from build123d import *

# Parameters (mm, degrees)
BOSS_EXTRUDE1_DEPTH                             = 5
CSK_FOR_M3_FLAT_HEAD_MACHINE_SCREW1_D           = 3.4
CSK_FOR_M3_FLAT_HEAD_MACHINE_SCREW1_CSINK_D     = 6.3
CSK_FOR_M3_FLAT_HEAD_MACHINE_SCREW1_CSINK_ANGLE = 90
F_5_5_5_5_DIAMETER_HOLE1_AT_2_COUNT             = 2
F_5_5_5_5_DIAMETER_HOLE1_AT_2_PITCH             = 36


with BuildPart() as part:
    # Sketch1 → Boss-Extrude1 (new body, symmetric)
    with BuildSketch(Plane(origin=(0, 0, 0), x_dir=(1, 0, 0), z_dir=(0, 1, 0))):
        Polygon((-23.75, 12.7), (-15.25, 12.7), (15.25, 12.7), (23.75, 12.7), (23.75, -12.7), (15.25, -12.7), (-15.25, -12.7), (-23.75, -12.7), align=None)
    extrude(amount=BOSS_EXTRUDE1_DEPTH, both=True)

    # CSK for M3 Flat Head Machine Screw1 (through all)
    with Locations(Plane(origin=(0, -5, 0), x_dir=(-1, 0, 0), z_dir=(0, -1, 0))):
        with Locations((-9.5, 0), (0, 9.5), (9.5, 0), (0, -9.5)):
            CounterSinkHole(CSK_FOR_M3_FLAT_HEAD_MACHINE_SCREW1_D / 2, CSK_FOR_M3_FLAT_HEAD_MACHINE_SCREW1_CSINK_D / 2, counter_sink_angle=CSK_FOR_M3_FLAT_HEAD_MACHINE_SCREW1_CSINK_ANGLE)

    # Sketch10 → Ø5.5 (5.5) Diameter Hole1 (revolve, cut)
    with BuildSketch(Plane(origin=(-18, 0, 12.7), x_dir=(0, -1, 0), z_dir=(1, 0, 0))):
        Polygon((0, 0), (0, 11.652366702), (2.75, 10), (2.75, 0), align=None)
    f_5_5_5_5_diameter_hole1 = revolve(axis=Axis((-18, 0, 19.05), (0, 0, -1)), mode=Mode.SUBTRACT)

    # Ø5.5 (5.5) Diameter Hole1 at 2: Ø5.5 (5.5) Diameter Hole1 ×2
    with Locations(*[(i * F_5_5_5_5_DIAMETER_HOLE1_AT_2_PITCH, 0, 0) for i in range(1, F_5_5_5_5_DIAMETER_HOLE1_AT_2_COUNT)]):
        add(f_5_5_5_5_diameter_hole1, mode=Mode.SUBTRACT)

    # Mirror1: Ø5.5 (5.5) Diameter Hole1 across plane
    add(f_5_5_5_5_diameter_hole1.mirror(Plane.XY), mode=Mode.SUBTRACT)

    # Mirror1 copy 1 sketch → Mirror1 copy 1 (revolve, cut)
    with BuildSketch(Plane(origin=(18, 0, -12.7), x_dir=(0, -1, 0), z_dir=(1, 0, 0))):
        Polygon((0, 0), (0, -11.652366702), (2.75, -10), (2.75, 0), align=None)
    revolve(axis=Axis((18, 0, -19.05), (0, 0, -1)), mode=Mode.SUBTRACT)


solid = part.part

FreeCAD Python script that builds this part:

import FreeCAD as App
import Part
import Sketcher
Q = App.Units.Quantity

doc = App.newDocument("Part")
body = doc.addObject("PartDesign::Body", "Body")

# Sketch on XZ plane
sketch1 = doc.addObject("Sketcher::SketchObject", "Sketch")
body.addObject(sketch1)
sketch1.AttachmentSupport = (doc.XZ_Plane, [""])
sketch1.MapMode = "FlatFace"
sketch1.addGeometry([
    Part.LineSegment(App.Vector(24, -13, 0), App.Vector(-24, -13, 0)),
    Part.LineSegment(App.Vector(-24, -13, 0), App.Vector(-24, 13, 0)),
    Part.LineSegment(App.Vector(-24, 13, 0), App.Vector(24, 13, 0)),
    Part.LineSegment(App.Vector(24, 13, 0), App.Vector(24, -13, 0)),
], False)
sketch1.addConstraint([
    Sketcher.Constraint("Coincident", 0, 2, 1, 1),
    Sketcher.Constraint("Coincident", 1, 2, 2, 1),
    Sketcher.Constraint("Coincident", 2, 2, 3, 1),
    Sketcher.Constraint("Coincident", 3, 2, 0, 1),
    Sketcher.Constraint("Horizontal", 0),
    Sketcher.Constraint("Vertical", 1),
    Sketcher.Constraint("Horizontal", 2),
    Sketcher.Constraint("Vertical", 3),
    Sketcher.Constraint("Symmetric", 0, 2, 2, 2, -1, 1),
    Sketcher.Constraint("DistanceX", 0, 2, 0, 1, Q("47.5 mm")),
    Sketcher.Constraint("DistanceY", 1, 1, 1, 2, Q("25.4 mm")),
])
pad1 = doc.addObject("PartDesign::Pad", "Pad")
body.addObject(pad1)
pad1.Profile = sketch1
pad1.Length = 10
pad1.Midplane = True

# Sketch on XZ plane
sketch2 = doc.addObject("Sketcher::SketchObject", "Sketch001")
body.addObject(sketch2)
sketch2.AttachmentSupport = (doc.XZ_Plane, [""])
sketch2.MapMode = "FlatFace"
sketch2.AttachmentOffset = App.Placement(App.Vector(0, 0, 5), App.Rotation())
sketch2.addGeometry([
    Part.Circle(App.Vector(9.5, 0, 0), App.Vector(0, 0, 1), 1.7),
    Part.Circle(App.Vector(0, -9.5, 0), App.Vector(0, 0, 1), 1.7),
    Part.Circle(App.Vector(-9.5, 0, 0), App.Vector(0, 0, 1), 1.7),
    Part.Circle(App.Vector(0, 9.5, 0), App.Vector(0, 0, 1), 1.7),
], False)
sketch2.addConstraint([
    Sketcher.Constraint("Equal", 0, 1),
    Sketcher.Constraint("Equal", 1, 2),
    Sketcher.Constraint("Equal", 2, 3),
    Sketcher.Constraint("Symmetric", 0, 3, 2, 3, -1, 1),
    Sketcher.Constraint("Symmetric", 1, 3, 3, 3, -1, 1),
    Sketcher.Constraint("PointOnObject", 0, 3, -1),
    Sketcher.Constraint("PointOnObject", 1, 3, -2),
    Sketcher.Constraint("Diameter", 0, Q("3.4 mm")),
    Sketcher.Constraint("DistanceX", 2, 3, 0, 3, Q("19 mm")),
    Sketcher.Constraint("DistanceY", 1, 3, 3, 3, Q("19 mm")),
])
doc.recompute()
hole = doc.addObject("PartDesign::Hole", "Hole")
body.addObject(hole)
hole.Profile = sketch2
hole.ThreadType = "None"
hole.Diameter = 3.4
hole.DepthType = "ThroughAll"
hole.HoleCutType = "Countersink"
hole.HoleCutDiameter = 6.3
hole.HoleCutCountersinkAngle = 90

# Sketch on YZ plane
sketch3 = doc.addObject("Sketcher::SketchObject", "Sketch002")
body.addObject(sketch3)
sketch3.AttachmentSupport = (doc.YZ_Plane, [""])
sketch3.MapMode = "FlatFace"
sketch3.AttachmentOffset = App.Placement(App.Vector(0, 0, -18), App.Rotation())
sketch3.addGeometry([
    Part.LineSegment(App.Vector(0, 1, 0), App.Vector(0, 12.7, 0)),
    Part.LineSegment(App.Vector(0, 12.7, 0), App.Vector(-2.8, 12.7, 0)),
    Part.LineSegment(App.Vector(-2.8, 12.7, 0), App.Vector(-2.8, 2.7, 0)),
    Part.LineSegment(App.Vector(-2.8, 2.7, 0), App.Vector(0, 1, 0)),
], False)
sketch3.addConstraint([
    Sketcher.Constraint("Coincident", 0, 2, 1, 1),
    Sketcher.Constraint("Coincident", 1, 2, 2, 1),
    Sketcher.Constraint("Coincident", 2, 2, 3, 1),
    Sketcher.Constraint("Coincident", 3, 2, 0, 1),
    Sketcher.Constraint("Vertical", 0),
    Sketcher.Constraint("Horizontal", 1),
    Sketcher.Constraint("Vertical", 2),
    Sketcher.Constraint("PointOnObject", 0, 2, -2),
    Sketcher.Constraint("DistanceY", 2, 2, 2, 1, Q("10 mm")),
    Sketcher.Constraint("Angle", 3, Q("-31 deg")),
    Sketcher.Constraint("DistanceX", 1, 2, 1, 1, Q("2.75 mm")),
    Sketcher.Constraint("DistanceY", -1, 1, 0, 2, Q("12.7 mm")),
])
groove = doc.addObject("PartDesign::Groove", "Groove")
body.addObject(groove)
groove.Profile = sketch3
groove.ReferenceAxis = (sketch3, ["V_Axis"])
groove.Angle = 360
doc.recompute()

linearpattern = doc.addObject("PartDesign::LinearPattern", "LinearPattern")
body.addObject(linearpattern)
linearpattern.Originals = [groove]
linearpattern.Direction = (doc.X_Axis, [""])
linearpattern.Mode = "offset"
linearpattern.Offset = 36
linearpattern.Occurrences = 2
body.Tip = linearpattern
doc.recompute()

mirrored = doc.addObject("PartDesign::Mirrored", "Mirrored")
body.addObject(mirrored)
mirrored.Originals = [groove]
mirrored.MirrorPlane = (doc.XY_Plane, [""])
body.Tip = mirrored

# Sketch on YZ plane
sketch4 = doc.addObject("Sketcher::SketchObject", "Sketch003")
body.addObject(sketch4)
sketch4.AttachmentSupport = (doc.YZ_Plane, [""])
sketch4.MapMode = "FlatFace"
sketch4.AttachmentOffset = App.Placement(App.Vector(0, 0, 18), App.Rotation())
sketch4.addGeometry([
    Part.LineSegment(App.Vector(0, -12.7, 0), App.Vector(0, -1, 0)),
    Part.LineSegment(App.Vector(0, -1, 0), App.Vector(-2.8, -2.7, 0)),
    Part.LineSegment(App.Vector(-2.8, -2.7, 0), App.Vector(-2.8, -12.7, 0)),
    Part.LineSegment(App.Vector(-2.8, -12.7, 0), App.Vector(0, -12.7, 0)),
], False)
sketch4.addConstraint([
    Sketcher.Constraint("Coincident", 0, 2, 1, 1),
    Sketcher.Constraint("Coincident", 1, 2, 2, 1),
    Sketcher.Constraint("Coincident", 2, 2, 3, 1),
    Sketcher.Constraint("Coincident", 3, 2, 0, 1),
    Sketcher.Constraint("Vertical", 0),
    Sketcher.Constraint("Vertical", 2),
    Sketcher.Constraint("Horizontal", 3),
    Sketcher.Constraint("PointOnObject", 0, 2, -2),
    Sketcher.Constraint("DistanceY", 2, 2, 2, 1, Q("10 mm")),
    Sketcher.Constraint("Angle", 1, Q("-149 deg")),
    Sketcher.Constraint("DistanceX", 3, 1, 3, 2, Q("2.75 mm")),
    Sketcher.Constraint("DistanceY", 1, 2, -1, 1, Q("2.7 mm")),
])
groove2 = doc.addObject("PartDesign::Groove", "Groove001")
body.addObject(groove2)
groove2.Profile = sketch4
groove2.ReferenceAxis = (sketch4, ["V_Axis"])
groove2.Angle = 360

doc.recompute()
